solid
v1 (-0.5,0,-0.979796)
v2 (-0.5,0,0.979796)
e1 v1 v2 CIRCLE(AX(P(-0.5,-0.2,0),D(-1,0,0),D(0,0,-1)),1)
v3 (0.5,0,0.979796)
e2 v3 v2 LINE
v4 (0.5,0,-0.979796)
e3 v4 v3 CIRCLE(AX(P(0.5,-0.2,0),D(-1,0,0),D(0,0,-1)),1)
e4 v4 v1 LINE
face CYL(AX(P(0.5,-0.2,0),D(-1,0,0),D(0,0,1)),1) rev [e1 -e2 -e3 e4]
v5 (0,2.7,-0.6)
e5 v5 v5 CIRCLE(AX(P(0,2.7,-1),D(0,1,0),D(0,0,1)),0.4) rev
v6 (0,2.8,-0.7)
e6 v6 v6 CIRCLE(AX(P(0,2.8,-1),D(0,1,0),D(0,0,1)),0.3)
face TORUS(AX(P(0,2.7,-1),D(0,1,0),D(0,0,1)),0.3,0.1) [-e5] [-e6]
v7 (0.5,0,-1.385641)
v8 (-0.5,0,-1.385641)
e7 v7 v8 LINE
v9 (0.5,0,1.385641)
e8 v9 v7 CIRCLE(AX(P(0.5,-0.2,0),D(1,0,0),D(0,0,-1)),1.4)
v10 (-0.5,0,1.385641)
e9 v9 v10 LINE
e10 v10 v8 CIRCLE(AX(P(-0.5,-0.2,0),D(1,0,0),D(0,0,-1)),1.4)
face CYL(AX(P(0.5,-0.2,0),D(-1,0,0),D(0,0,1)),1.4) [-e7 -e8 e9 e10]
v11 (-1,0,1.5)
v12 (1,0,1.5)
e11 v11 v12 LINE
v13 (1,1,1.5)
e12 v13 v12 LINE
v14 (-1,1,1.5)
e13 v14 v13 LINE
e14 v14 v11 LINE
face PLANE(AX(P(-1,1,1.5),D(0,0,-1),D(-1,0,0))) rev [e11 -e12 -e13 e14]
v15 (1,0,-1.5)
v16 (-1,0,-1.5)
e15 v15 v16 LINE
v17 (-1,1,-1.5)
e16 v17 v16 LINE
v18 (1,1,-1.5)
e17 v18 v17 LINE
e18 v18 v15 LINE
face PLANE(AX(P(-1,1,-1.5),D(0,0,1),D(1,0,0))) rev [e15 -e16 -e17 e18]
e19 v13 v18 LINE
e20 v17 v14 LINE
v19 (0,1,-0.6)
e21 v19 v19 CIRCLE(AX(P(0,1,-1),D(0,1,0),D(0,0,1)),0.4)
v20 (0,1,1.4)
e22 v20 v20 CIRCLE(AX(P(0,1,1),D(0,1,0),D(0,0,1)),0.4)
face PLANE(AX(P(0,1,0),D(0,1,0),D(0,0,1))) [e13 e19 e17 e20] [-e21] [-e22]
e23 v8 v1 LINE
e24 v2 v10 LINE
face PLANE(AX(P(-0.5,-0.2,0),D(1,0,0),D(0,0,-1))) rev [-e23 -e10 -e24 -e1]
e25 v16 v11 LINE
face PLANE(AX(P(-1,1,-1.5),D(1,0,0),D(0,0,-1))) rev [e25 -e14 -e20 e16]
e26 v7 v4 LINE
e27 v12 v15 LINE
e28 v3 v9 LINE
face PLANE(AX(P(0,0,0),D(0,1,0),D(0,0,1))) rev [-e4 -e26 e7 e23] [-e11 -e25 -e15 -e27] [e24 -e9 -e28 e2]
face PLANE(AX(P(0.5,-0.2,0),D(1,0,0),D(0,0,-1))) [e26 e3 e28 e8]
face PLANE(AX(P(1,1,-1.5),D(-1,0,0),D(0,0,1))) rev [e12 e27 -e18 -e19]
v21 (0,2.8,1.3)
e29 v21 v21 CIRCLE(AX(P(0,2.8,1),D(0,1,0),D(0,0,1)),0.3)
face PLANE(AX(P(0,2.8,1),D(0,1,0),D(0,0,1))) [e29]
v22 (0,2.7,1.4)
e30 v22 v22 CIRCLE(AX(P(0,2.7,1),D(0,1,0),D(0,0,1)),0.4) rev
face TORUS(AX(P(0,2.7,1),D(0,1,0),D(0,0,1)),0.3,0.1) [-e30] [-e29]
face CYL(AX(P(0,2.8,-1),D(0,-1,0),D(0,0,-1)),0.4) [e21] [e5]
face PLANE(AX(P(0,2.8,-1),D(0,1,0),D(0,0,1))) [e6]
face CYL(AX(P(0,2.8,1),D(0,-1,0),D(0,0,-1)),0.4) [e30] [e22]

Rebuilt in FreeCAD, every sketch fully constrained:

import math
import FreeCAD as App
import Part
import Sketcher
from FreeCAD import Vector
Q = App.Units.Quantity


def edges_at(feature, points):
    """Names of the edges that pass closest to the given points."""
    edges = feature.Shape.Edges
    near = lambda p: min(range(len(edges)), key=lambda i: edges[i].distToShape(Part.Vertex(*p))[0])
    return sorted({f"Edge{near(p) + 1}" for p in points})


def add_polygon(sketch, points):
    """Adds a closed chain of lines whose ends are joined by coincident constraints."""
    first, n = sketch.GeometryCount, len(points)
    for a, b in zip(points, points[1:] + points[:1]):
        sketch.addGeometry(Part.LineSegment(App.Vector(*a, 0), App.Vector(*b, 0)), False)
    for i in range(n):
        sketch.addConstraint(Sketcher.Constraint("Coincident", first + i, 2, first + (i + 1) % n, 1))

doc = App.newDocument("Part")
body = doc.addObject("PartDesign::Body", "Body")

# Sketch on XZ plane
sketch1 = doc.addObject("Sketcher::SketchObject", "Sketch")
body.addObject(sketch1)
sketch1.AttachmentSupport = (doc.XZ_Plane, [""])
sketch1.MapMode = "FlatFace"
add_polygon(sketch1, [(-1, -1.5), (-1, 1.5), (1, 1.5), (1, -1.5)])  # lines 0-3
sketch1.addConstraint([
    Sketcher.Constraint("Vertical", 0),
    Sketcher.Constraint("Horizontal", 1),
    Sketcher.Constraint("Vertical", 2),
    Sketcher.Constraint("Horizontal", 3),
    Sketcher.Constraint("Symmetric", 0, 2, 2, 2, -1, 1),
    Sketcher.Constraint("DistanceX", 1, 1, 1, 2, Q("2 mm")),
    Sketcher.Constraint("DistanceY", 0, 1, 0, 2, Q("3 mm")),
])
pad1 = doc.addObject("PartDesign::Pad", "Pad")
body.addObject(pad1)
pad1.Profile = sketch1
pad1.Length = 1
pad1.Reversed = True

# Sketch on XZ plane
sketch2 = doc.addObject("Sketcher::SketchObject", "Sketch001")
body.addObject(sketch2)
sketch2.AttachmentSupport = (doc.XZ_Plane, [""])
sketch2.MapMode = "FlatFace"
sketch2.AttachmentOffset = App.Placement(Vector(0, 0, -1), App.Rotation())
sketch2.addGeometry([
    Part.Circle(Vector(0, -1, 0), Vector(0, 0, 1), 0.4),
    Part.Circle(Vector(0, 1, 0), Vector(0, 0, 1), 0.4),
], False)
sketch2.addConstraint([
    Sketcher.Constraint("Equal", 0, 1),
    Sketcher.Constraint("Symmetric", 0, 3, 1, 3, -1, 1),
    Sketcher.Constraint("PointOnObject", 0, 3, -2),
    Sketcher.Constraint("Diameter", 0, Q("0.8 mm")),
    Sketcher.Constraint("DistanceY", 0, 3, -1, 1, Q("1 mm")),
])
pad2 = doc.addObject("PartDesign::Pad", "Pad001")
body.addObject(pad2)
pad2.Profile = sketch2
pad2.Length = 1.8
pad2.Reversed = True

# Sketch on YZ plane
sketch3 = doc.addObject("Sketcher::SketchObject", "Sketch002")
body.addObject(sketch3)
sketch3.AttachmentSupport = (doc.YZ_Plane, [""])
sketch3.MapMode = "FlatFace"
sketch3.addGeometry([
    Part.LineSegment(Vector(0, 0.98, 0), Vector(0, 1.39, 0)),
    Part.ArcOfCircle(Part.Circle(Vector(-0.2, 0, 0), Vector(0, 0, 1), 1.4), math.radians(82), math.radians(278)),
    Part.LineSegment(Vector(0, -1.39, 0), Vector(0, -0.98, 0)),
    Part.ArcOfCircle(Part.Circle(Vector(-0.2, 0, 0), Vector(0, 0, 1), 1), math.radians(78), math.radians(282)),
], False)
sketch3.addConstraint([
    Sketcher.Constraint("Coincident", 0, 2, 1, 1),
    Sketcher.Constraint("Coincident", 1, 2, 2, 1),
    Sketcher.Constraint("Coincident", 2, 2, 3, 2),
    Sketcher.Constraint("Coincident", 3, 1, 0, 1),
    Sketcher.Constraint("Vertical", 0),
    Sketcher.Constraint("Vertical", 2),
    Sketcher.Constraint("Coincident", 3, 3, 1, 3),
    Sketcher.Constraint("Symmetric", 0, 2, 1, 2, -1, 1),
    Sketcher.Constraint("PointOnObject", 1, 3, -1),
    Sketcher.Constraint("Radius", 3, Q("1 mm")),
    Sketcher.Constraint("Radius", 1, Q("1.4 mm")),
    Sketcher.Constraint("DistanceX", 1, 3, -1, 1, Q("0.2 mm")),
])
pad3 = doc.addObject("PartDesign::Pad", "Pad002")
body.addObject(pad3)
pad3.Profile = sketch3
pad3.Length = 1
pad3.Midplane = True
doc.recompute()

fillet = doc.addObject("PartDesign::Fillet", "Fillet")
body.addObject(fillet)
fillet.Base = (pad3, edges_at(pad3, [(-0.4, 2.8, -1), (-0.4, 2.8, 1)]))
fillet.Radius = 0.1

doc.recompute()
